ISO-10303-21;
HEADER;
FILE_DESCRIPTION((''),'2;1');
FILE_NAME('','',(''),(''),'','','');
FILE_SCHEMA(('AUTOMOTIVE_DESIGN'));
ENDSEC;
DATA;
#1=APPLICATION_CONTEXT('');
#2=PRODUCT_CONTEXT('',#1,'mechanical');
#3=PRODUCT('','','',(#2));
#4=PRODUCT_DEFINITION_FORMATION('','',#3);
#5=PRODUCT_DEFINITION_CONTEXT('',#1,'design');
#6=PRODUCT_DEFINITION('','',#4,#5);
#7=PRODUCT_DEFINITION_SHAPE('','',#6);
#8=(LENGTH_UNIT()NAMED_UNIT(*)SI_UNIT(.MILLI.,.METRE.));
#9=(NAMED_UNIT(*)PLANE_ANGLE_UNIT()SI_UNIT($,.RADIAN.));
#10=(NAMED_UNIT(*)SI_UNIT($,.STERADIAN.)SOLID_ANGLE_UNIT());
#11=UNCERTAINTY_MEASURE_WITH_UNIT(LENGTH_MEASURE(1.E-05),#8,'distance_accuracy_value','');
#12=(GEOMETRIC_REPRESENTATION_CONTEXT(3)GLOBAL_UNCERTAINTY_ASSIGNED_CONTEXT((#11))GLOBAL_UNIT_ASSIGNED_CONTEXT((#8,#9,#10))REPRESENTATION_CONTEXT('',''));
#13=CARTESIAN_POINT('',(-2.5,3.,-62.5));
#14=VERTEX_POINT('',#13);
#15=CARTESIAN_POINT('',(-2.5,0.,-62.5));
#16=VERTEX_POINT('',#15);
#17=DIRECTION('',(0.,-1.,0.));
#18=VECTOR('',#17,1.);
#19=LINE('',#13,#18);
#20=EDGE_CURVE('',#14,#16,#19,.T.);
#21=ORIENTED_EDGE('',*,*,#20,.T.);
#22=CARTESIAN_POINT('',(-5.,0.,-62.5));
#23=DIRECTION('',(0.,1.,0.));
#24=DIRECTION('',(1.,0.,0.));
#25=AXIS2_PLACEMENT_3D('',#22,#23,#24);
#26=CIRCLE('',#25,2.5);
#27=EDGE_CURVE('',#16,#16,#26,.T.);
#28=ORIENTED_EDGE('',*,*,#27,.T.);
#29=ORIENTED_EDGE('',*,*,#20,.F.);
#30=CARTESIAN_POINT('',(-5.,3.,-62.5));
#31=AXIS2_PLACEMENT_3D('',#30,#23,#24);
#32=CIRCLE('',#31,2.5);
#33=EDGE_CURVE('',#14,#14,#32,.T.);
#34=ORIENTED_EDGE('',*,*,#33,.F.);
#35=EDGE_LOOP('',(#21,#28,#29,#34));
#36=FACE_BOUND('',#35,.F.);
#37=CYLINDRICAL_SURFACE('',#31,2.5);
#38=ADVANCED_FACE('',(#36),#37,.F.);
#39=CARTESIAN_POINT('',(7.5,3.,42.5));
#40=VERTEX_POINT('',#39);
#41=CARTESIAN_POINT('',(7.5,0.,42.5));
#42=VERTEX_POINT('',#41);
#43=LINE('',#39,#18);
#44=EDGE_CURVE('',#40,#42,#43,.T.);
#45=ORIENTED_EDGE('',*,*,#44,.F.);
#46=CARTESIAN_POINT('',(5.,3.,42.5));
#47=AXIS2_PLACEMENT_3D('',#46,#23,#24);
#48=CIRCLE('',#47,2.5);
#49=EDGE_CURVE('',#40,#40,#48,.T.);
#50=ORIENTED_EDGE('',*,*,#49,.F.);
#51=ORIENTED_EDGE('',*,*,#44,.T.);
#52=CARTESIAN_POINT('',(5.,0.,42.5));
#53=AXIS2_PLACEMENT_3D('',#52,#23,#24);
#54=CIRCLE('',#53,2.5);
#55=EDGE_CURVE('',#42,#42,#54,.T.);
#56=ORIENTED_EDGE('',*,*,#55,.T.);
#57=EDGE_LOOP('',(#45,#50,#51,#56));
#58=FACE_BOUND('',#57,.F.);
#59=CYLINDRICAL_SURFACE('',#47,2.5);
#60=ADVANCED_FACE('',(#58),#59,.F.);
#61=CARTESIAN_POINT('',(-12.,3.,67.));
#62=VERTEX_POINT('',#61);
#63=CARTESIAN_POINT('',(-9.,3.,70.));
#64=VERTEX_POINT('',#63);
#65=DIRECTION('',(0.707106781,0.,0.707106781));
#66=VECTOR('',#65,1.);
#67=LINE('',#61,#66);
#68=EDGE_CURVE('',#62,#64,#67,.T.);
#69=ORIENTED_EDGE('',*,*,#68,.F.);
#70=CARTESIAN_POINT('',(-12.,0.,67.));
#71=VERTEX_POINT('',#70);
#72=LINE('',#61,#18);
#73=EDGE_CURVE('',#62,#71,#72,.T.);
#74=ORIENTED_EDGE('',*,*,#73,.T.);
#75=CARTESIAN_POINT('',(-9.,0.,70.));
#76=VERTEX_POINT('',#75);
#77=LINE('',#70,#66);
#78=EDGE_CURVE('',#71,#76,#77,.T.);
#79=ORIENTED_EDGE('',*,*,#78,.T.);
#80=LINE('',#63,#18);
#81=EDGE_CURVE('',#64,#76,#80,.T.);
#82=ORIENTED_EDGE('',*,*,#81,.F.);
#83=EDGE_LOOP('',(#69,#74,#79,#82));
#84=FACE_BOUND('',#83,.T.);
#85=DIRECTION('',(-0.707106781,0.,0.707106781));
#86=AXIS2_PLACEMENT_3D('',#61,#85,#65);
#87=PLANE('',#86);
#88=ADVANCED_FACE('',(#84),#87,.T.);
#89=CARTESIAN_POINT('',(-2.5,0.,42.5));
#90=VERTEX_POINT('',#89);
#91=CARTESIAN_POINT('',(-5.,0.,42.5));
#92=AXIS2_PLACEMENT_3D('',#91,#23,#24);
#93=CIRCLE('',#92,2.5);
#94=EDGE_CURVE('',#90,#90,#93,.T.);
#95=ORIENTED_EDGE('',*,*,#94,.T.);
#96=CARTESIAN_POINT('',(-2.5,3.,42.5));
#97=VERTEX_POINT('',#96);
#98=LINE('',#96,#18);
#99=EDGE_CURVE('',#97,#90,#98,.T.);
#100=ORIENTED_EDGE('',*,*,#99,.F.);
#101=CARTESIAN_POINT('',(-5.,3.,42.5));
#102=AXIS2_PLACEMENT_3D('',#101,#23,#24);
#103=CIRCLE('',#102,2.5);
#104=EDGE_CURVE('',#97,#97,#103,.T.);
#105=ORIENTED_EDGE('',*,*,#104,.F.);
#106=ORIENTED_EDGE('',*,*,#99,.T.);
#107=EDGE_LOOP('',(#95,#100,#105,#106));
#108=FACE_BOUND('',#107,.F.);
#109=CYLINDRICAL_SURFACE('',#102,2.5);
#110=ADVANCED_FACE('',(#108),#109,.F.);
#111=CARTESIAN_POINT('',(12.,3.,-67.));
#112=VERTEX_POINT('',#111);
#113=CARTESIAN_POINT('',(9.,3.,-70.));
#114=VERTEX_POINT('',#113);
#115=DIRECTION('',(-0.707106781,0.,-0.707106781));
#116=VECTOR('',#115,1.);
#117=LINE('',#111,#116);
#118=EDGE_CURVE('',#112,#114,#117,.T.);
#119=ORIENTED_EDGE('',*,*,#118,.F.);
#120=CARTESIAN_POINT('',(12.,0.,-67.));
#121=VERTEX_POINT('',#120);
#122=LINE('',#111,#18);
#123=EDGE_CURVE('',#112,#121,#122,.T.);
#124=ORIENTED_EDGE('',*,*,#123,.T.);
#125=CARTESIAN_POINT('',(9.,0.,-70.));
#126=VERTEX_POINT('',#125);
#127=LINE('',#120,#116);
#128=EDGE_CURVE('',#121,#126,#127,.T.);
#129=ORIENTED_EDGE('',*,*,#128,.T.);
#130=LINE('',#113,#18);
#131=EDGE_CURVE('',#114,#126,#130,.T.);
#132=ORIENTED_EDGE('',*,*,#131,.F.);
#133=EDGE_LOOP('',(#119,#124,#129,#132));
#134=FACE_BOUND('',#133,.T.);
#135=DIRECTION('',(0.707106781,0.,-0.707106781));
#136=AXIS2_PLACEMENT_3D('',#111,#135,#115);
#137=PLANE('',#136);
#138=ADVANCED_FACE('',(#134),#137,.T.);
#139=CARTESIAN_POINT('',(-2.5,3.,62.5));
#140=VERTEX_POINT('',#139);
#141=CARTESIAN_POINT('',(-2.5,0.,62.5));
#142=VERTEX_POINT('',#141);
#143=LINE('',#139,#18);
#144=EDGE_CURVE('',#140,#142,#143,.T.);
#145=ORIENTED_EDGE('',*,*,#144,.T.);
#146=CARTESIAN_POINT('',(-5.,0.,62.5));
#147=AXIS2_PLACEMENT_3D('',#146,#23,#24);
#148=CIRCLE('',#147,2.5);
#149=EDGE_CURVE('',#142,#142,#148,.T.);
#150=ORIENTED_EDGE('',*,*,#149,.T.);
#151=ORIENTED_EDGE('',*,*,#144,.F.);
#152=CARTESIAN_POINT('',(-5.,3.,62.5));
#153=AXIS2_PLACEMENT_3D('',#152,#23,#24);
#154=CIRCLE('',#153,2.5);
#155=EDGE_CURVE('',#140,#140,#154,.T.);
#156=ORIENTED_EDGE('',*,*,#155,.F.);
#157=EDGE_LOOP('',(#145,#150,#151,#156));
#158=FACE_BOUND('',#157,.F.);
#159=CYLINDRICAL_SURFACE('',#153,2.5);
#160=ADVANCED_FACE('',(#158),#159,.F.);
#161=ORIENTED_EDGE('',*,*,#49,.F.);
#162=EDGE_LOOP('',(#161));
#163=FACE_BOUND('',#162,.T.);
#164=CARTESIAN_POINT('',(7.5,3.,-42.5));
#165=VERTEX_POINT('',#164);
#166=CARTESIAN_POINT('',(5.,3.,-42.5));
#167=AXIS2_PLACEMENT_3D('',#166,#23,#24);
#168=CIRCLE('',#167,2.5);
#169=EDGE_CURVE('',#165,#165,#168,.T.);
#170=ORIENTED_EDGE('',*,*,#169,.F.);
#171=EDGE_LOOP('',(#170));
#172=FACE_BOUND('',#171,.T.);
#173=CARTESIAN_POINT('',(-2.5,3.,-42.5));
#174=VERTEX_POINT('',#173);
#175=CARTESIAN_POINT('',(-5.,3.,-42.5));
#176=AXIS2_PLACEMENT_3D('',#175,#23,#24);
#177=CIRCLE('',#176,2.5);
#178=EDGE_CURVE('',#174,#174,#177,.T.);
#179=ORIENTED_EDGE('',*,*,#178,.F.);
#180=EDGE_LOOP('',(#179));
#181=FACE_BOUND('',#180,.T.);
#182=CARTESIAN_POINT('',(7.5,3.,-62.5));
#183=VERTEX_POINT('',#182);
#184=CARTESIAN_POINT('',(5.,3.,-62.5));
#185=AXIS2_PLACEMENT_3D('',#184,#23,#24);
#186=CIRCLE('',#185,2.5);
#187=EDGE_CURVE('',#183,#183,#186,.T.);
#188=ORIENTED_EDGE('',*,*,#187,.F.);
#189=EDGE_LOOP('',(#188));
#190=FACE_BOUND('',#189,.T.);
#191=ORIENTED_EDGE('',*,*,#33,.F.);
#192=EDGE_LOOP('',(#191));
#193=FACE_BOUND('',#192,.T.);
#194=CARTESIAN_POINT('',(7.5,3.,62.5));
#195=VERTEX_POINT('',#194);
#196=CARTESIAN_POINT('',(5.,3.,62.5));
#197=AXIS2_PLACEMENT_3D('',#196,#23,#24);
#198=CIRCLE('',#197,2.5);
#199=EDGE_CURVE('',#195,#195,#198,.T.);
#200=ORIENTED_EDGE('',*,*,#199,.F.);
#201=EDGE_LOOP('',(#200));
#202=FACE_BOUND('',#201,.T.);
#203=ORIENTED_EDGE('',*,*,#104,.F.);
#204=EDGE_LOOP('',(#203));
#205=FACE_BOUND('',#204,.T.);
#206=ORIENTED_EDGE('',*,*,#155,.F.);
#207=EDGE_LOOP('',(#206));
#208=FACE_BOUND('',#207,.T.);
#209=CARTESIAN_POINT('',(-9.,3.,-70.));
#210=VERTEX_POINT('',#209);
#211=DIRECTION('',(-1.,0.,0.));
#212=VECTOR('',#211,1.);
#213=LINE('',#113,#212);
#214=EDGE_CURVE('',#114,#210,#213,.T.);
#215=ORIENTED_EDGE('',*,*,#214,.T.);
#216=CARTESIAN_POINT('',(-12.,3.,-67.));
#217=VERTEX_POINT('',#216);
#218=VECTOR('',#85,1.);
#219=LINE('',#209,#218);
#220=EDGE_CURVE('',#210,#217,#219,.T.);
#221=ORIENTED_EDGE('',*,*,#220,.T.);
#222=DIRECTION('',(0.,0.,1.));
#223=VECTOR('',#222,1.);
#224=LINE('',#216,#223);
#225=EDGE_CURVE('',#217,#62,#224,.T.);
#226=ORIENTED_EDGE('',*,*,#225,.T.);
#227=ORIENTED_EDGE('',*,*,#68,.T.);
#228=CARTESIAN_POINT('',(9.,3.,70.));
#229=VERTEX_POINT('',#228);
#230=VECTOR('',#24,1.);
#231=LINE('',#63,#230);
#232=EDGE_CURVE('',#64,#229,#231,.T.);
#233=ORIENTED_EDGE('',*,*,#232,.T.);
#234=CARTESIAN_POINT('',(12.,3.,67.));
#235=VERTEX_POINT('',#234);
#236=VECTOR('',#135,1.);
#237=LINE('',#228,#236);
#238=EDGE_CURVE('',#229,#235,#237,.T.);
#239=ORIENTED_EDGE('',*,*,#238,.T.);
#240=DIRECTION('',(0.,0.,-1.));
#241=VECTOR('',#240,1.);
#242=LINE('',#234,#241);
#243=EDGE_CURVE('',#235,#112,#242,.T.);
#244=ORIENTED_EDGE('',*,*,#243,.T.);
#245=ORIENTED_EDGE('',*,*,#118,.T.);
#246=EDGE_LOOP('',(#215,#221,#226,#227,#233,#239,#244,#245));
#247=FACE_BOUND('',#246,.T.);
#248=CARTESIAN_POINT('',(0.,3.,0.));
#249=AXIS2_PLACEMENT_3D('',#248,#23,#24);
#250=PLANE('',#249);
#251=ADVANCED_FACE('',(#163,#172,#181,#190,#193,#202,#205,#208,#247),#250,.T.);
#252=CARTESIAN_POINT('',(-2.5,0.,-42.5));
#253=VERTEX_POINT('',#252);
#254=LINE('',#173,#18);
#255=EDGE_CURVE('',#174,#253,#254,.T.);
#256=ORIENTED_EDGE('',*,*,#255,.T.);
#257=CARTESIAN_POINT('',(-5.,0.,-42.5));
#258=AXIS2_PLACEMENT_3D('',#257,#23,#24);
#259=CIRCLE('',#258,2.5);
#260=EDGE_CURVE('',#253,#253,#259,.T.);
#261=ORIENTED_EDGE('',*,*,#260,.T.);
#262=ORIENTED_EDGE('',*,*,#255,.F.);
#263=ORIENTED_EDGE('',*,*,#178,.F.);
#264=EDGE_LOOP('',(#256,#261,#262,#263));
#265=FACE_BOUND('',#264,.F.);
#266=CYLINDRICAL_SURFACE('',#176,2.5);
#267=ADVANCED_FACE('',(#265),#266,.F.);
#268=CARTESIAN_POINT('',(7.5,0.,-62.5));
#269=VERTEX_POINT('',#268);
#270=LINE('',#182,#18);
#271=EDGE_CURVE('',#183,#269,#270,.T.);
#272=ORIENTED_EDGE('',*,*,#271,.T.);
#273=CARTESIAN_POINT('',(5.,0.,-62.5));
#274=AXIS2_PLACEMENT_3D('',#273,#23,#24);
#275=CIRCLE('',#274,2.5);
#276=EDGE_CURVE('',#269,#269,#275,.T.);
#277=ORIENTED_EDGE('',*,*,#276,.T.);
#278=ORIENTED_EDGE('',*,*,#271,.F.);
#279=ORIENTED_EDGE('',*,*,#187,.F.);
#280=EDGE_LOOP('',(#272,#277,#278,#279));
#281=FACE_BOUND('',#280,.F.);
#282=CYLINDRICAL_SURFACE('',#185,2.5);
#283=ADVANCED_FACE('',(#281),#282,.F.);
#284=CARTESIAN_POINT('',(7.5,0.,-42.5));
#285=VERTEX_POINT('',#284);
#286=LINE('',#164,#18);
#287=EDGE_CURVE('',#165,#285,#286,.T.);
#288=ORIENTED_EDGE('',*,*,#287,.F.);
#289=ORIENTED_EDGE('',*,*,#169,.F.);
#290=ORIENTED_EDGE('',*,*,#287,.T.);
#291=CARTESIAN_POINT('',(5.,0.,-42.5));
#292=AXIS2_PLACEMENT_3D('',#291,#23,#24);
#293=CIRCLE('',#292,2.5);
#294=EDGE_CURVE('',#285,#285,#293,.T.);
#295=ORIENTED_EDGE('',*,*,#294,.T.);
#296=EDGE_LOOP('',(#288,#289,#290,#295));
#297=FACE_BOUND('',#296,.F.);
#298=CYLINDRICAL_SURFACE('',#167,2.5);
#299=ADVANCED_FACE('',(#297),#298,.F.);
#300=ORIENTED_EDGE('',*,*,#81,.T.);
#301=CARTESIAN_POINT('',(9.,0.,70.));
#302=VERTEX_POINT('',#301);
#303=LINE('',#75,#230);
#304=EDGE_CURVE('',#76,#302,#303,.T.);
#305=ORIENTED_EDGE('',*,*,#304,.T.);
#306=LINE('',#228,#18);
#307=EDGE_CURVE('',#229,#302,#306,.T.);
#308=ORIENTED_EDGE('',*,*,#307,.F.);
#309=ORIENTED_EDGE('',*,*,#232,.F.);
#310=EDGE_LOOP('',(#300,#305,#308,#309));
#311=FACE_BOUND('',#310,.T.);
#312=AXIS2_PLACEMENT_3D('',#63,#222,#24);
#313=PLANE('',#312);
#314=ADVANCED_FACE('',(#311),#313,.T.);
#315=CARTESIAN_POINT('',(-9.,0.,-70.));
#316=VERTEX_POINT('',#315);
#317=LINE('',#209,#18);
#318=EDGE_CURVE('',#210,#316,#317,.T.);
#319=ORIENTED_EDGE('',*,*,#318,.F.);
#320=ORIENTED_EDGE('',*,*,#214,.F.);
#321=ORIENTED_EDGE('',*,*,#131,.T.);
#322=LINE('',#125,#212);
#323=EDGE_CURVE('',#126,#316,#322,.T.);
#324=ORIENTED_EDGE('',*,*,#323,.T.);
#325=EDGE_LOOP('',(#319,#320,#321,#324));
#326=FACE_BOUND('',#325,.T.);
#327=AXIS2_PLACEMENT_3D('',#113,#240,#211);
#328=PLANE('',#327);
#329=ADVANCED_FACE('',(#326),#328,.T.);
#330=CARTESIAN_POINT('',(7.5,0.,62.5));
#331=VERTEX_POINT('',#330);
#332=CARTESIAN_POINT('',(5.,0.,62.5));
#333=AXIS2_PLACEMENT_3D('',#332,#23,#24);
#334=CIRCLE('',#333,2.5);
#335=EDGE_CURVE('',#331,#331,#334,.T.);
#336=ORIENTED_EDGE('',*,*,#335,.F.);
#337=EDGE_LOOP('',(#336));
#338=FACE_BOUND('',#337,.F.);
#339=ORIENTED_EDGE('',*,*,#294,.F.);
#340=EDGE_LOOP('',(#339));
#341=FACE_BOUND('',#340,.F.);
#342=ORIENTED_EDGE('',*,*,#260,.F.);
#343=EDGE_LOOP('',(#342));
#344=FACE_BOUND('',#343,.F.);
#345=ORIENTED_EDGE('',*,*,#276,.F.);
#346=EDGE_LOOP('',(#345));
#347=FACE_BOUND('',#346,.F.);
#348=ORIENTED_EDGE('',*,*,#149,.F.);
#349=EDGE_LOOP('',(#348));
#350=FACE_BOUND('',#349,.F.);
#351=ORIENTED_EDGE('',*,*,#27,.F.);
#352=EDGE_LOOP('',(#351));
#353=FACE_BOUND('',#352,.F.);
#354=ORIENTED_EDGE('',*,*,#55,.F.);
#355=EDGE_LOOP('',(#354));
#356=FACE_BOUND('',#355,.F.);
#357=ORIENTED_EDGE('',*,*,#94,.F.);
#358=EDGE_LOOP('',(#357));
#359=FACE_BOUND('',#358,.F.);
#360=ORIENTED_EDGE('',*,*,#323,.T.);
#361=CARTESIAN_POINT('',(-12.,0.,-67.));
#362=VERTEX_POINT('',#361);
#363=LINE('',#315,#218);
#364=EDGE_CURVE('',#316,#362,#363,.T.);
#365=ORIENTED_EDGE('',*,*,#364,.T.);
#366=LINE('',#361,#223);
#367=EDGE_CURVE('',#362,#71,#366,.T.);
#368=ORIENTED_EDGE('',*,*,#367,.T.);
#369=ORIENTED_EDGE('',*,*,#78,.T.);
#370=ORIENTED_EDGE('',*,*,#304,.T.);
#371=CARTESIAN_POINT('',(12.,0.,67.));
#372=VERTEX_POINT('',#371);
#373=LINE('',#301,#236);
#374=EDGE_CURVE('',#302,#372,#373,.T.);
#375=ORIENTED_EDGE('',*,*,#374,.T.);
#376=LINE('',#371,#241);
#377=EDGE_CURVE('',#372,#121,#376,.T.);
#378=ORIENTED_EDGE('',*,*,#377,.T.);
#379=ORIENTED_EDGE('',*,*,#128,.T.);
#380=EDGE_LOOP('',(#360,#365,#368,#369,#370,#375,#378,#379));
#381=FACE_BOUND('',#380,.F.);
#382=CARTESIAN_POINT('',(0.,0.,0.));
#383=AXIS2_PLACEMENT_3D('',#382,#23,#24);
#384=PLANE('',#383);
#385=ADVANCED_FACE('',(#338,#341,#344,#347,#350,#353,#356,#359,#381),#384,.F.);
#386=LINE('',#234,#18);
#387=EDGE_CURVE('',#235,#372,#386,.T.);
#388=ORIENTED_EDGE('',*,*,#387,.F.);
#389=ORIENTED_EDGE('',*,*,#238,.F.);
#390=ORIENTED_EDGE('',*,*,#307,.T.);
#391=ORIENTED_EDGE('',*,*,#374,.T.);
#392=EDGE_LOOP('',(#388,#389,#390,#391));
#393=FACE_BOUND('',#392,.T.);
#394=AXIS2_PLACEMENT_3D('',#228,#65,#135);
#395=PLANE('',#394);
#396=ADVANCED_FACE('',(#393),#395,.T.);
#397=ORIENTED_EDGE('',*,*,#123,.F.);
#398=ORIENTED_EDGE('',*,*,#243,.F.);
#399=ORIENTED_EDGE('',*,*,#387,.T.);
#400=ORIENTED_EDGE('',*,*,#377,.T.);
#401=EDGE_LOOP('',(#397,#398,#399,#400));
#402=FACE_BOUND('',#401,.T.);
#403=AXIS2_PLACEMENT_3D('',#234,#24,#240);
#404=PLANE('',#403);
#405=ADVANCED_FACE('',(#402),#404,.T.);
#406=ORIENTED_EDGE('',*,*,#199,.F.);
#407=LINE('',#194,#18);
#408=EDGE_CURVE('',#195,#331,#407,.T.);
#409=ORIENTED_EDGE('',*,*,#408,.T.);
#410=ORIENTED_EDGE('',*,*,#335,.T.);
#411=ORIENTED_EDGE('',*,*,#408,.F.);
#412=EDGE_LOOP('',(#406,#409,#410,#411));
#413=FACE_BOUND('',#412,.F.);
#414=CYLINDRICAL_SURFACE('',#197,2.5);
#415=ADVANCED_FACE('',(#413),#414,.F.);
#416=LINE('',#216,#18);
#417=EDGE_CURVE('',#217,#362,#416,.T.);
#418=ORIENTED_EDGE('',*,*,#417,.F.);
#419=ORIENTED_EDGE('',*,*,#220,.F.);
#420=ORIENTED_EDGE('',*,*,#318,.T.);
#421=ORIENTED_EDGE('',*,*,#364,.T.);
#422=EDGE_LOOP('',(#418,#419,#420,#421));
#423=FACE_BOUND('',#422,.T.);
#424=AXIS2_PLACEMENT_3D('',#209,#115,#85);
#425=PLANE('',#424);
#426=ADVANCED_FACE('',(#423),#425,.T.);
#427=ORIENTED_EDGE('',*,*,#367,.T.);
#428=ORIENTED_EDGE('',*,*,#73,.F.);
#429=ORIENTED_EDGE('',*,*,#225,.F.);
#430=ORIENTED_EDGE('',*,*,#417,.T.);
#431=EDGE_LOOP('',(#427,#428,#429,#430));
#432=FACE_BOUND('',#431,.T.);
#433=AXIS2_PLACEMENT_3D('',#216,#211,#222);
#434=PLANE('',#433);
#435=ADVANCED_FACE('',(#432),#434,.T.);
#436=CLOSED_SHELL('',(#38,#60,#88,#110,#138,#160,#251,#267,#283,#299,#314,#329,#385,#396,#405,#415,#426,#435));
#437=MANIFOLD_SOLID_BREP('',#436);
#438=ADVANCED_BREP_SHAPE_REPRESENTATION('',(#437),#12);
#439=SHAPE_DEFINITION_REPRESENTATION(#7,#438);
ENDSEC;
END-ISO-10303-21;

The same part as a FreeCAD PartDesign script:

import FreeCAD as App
import Part
import Sketcher
Q = App.Units.Quantity


def add_polygon(sketch, points):
    """Adds a closed chain of lines whose ends are joined by coincident constraints."""
    first, n = sketch.GeometryCount, len(points)
    for a, b in zip(points, points[1:] + points[:1]):
        sketch.addGeometry(Part.LineSegment(App.Vector(*a, 0), App.Vector(*b, 0)), False)
    for i in range(n):
        sketch.addConstraint(Sketcher.Constraint("Coincident", first + i, 2, first + (i + 1) % n, 1))

doc = App.newDocument("Part")
body = doc.addObject("PartDesign::Body", "Body")

# Sketch on XZ plane
sketch1 = doc.addObject("Sketcher::SketchObject", "Sketch")
body.addObject(sketch1)
sketch1.AttachmentSupport = (doc.XZ_Plane, [""])
sketch1.MapMode = "FlatFace"
sketch1.AttachmentOffset = App.Placement(App.Vector(0, 0, -3), App.Rotation())
add_polygon(sketch1, [(-12, -67), (-12, 67), (-9, 70), (9, 70), (12, 67), (12, -67), (9, -70), (-9, -70)])  # lines 0-7
sketch1.addGeometry(Part.Circle(App.Vector(-5, 62.5, 0), App.Vector(0, 0, 1), 2.5), False)  # 8
sketch1.addGeometry(Part.Circle(App.Vector(-5, 42.5, 0), App.Vector(0, 0, 1), 2.5), False)  # 9
sketch1.addGeometry(Part.Circle(App.Vector(5, 62.5, 0), App.Vector(0, 0, 1), 2.5), False)  # 10
sketch1.addGeometry(Part.Circle(App.Vector(5, 42.5, 0), App.Vector(0, 0, 1), 2.5), False)  # 11
sketch1.addGeometry(Part.Circle(App.Vector(-5, -42.5, 0), App.Vector(0, 0, 1), 2.5), False)  # 12
sketch1.addGeometry(Part.Circle(App.Vector(-5, -62.5, 0), App.Vector(0, 0, 1), 2.5), False)  # 13
sketch1.addGeometry(Part.Circle(App.Vector(5, -42.5, 0), App.Vector(0, 0, 1), 2.5), False)  # 14
sketch1.addGeometry(Part.Circle(App.Vector(5, -62.5, 0), App.Vector(0, 0, 1), 2.5), False)  # 15
sketch1.addConstraint([
    Sketcher.Constraint("Vertical", 0),
    Sketcher.Constraint("Horizontal", 2),
    Sketcher.Constraint("Vertical", 4),
    Sketcher.Constraint("Horizontal", 6),
    Sketcher.Constraint("Equal", 8, 9),
    Sketcher.Constraint("Equal", 9, 10),
    Sketcher.Constraint("Equal", 10, 11),
    Sketcher.Constraint("Equal", 11, 12),
    Sketcher.Constraint("Equal", 12, 13),
    Sketcher.Constraint("Equal", 13, 14),
    Sketcher.Constraint("Equal", 14, 15),
    Sketcher.Constraint("Symmetric", 11, 3, 12, 3, -1, 1),
    Sketcher.Constraint("Symmetric", 10, 3, 13, 3, -1, 1),
    Sketcher.Constraint("Symmetric", 9, 3, 14, 3, -1, 1),
    Sketcher.Constraint("Symmetric", 8, 3, 15, 3, -1, 1),
    Sketcher.Constraint("Symmetric", 0, 2, 4, 2, -1, 1),
    Sketcher.Constraint("Symmetric", 1, 2, 5, 2, -1, 1),
    Sketcher.Constraint("Symmetric", 8, 3, 10, 3, -2),
    Sketcher.Constraint("Symmetric", 9, 3, 11, 3, -2),
    Sketcher.Constraint("Perpendicular", 1, 3),
    Sketcher.Constraint("Perpendicular", 5, 7),
    Sketcher.Constraint("Horizontal", 0, 2, 3, 2),
    Sketcher.Constraint("Horizontal", 4, 2, 7, 2),
    Sketcher.Constraint("Vertical", 8, 3, 9, 3),
    Sketcher.Constraint("Vertical", 2, 2, 5, 2),
    Sketcher.Constraint("Diameter", 8, Q("5 mm")),
    Sketcher.Constraint("DistanceX", 2, 1, 2, 2, Q("18 mm")),
    Sketcher.Constraint("DistanceY", 0, 1, 0, 2, Q("134 mm")),
    Sketcher.Constraint("DistanceX", 8, 3, -1, 1, Q("5 mm")),
    Sketcher.Constraint("DistanceX", 0, 2, -1, 1, Q("12 mm")),
    Sketcher.Constraint("DistanceY", 9, 3, 8, 3, Q("20 mm")),
    Sketcher.Constraint("DistanceY", 12, 3, 9, 3, Q("85 mm")),
])
pad1 = doc.addObject("PartDesign::Pad", "Pad")
body.addObject(pad1)
pad1.Profile = sketch1
pad1.Length = 3

doc.recompute()
